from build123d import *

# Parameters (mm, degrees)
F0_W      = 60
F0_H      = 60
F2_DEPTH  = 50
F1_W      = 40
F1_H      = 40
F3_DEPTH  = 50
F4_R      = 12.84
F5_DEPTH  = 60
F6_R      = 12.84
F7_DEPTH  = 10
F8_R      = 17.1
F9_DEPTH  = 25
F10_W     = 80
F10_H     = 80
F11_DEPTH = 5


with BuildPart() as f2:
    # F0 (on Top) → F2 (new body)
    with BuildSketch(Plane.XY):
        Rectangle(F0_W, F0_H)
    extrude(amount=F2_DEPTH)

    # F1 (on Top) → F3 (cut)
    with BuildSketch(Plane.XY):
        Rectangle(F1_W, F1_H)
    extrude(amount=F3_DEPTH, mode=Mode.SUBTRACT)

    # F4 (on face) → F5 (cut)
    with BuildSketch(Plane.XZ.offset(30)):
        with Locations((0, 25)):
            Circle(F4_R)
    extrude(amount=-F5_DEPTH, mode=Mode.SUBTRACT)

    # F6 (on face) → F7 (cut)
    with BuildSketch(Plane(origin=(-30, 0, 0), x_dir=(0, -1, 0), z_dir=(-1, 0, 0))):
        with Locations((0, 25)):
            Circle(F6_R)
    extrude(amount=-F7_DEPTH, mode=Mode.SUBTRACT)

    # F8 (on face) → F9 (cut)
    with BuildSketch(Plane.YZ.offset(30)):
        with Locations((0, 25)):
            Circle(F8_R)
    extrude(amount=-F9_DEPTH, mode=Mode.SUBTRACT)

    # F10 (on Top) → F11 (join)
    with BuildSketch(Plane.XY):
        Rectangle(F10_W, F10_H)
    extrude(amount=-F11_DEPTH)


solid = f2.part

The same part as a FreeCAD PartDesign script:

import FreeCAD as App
import Part
import Sketcher

V = App.Vector
Q = App.Units.Quantity


def add_polygon(sketch, points):
    """Adds a closed chain of lines whose ends are joined by coincident constraints."""
    first, n = sketch.GeometryCount, len(points)
    for a, b in zip(points, points[1:] + points[:1]):
        sketch.addGeometry(Part.LineSegment(App.Vector(*a, 0), App.Vector(*b, 0)), False)
    for i in range(n):
        sketch.addConstraint(Sketcher.Constraint("Coincident", first + i, 2, first + (i + 1) % n, 1))

doc = App.newDocument("Part")
body = doc.addObject("PartDesign::Body", "Body")

sketch1 = body.newObject("Sketcher::SketchObject", "Sketch")
sketch1.AttachmentSupport = (doc.getObject("XY_Plane"), [""])
sketch1.MapMode = "FlatFace"
add_polygon(sketch1, [(-30, 30), (-30, -30), (30, -30), (30, 30)])
sketch1.addConstraint([
    Sketcher.Constraint("Vertical", 0),
    Sketcher.Constraint("Horizontal", 1),
    Sketcher.Constraint("Vertical", 2),
    Sketcher.Constraint("Horizontal", 3),
    Sketcher.Constraint("Symmetric", 0, 2, 2, 2, -1, 1),
    Sketcher.Constraint("Equal", 3, 0),
    Sketcher.Constraint("DistanceX", 1, 1, 1, 2, Q("60 mm")),
])
pad1 = body.newObject("PartDesign::Pad", "Pad")
pad1.Profile = sketch1
pad1.Length = 50

sketch2 = body.newObject("Sketcher::SketchObject", "Sketch001")
sketch2.AttachmentSupport = (doc.getObject("XY_Plane"), [""])
sketch2.MapMode = "FlatFace"
add_polygon(sketch2, [(-20, 20), (-20, -20), (20, -20), (20, 20)])
sketch2.addConstraint([
    Sketcher.Constraint("Vertical", 0),
    Sketcher.Constraint("Horizontal", 1),
    Sketcher.Constraint("Vertical", 2),
    Sketcher.Constraint("Horizontal", 3),
    Sketcher.Constraint("Symmetric", 0, 2, 2, 2, -1, 1),
    Sketcher.Constraint("Equal", 3, 0),
    Sketcher.Constraint("DistanceX", 1, 1, 1, 2, Q("40 mm")),
])
pocket1 = body.newObject("PartDesign::Pocket", "Pocket")
pocket1.Profile = sketch2
pocket1.Length = 50
pocket1.Reversed = True

sketch3 = body.newObject("Sketcher::SketchObject", "Sketch002")
sketch3.AttachmentSupport = (doc.getObject("XZ_Plane"), [""])
sketch3.MapMode = "FlatFace"
sketch3.AttachmentOffset = App.Placement(V(0, 0, 30), App.Rotation())
sketch3.addGeometry(Part.Circle(V(0, 25, 0), V(0, 0, 1), 13), False)
sketch3.addConstraint([
    Sketcher.Constraint("PointOnObject", 0, 3, -2),
    Sketcher.Constraint("Diameter", 0, Q("25.68 mm")),
    Sketcher.Constraint("DistanceY", -1, 1, 0, 3, Q("25 mm")),
])
pocket2 = body.newObject("PartDesign::Pocket", "Pocket001")
pocket2.Profile = sketch3
pocket2.Length = 60

sketch4 = body.newObject("Sketcher::SketchObject", "Sketch003")
sketch4.AttachmentSupport = (doc.getObject("YZ_Plane"), [""])
sketch4.MapMode = "FlatFace"
sketch4.AttachmentOffset = App.Placement(V(0, 0, -30), App.Rotation())
sketch4.addGeometry(Part.Circle(V(0, 25, 0), V(0, 0, 1), 13), False)
sketch4.addConstraint([
    Sketcher.Constraint("PointOnObject", 0, 3, -2),
    Sketcher.Constraint("Diameter", 0, Q("25.68 mm")),
    Sketcher.Constraint("DistanceY", -1, 1, 0, 3, Q("25 mm")),
])
pocket3 = body.newObject("PartDesign::Pocket", "Pocket002")
pocket3.Profile = sketch4
pocket3.Length = 10
pocket3.Reversed = True

sketch5 = body.newObject("Sketcher::SketchObject", "Sketch004")
sketch5.AttachmentSupport = (doc.getObject("YZ_Plane"), [""])
sketch5.MapMode = "FlatFace"
sketch5.AttachmentOffset = App.Placement(V(0, 0, 30), App.Rotation())
sketch5.addGeometry(Part.Circle(V(0, 25, 0), V(0, 0, 1), 17), False)
sketch5.addConstraint([
    Sketcher.Constraint("PointOnObject", 0, 3, -2),
    Sketcher.Constraint("Diameter", 0, Q("34.2 mm")),
    Sketcher.Constraint("DistanceY", -1, 1, 0, 3, Q("25 mm")),
])
pocket4 = body.newObject("PartDesign::Pocket", "Pocket003")
pocket4.Profile = sketch5
pocket4.Length = 25

sketch6 = body.newObject("Sketcher::SketchObject", "Sketch005")
sketch6.AttachmentSupport = (doc.getObject("XY_Plane"), [""])
sketch6.MapMode = "FlatFace"
add_polygon(sketch6, [(-40, 40), (-40, -40), (40, -40), (40, 40)])
sketch6.addConstraint([
    Sketcher.Constraint("Vertical", 0),
    Sketcher.Constraint("Horizontal", 1),
    Sketcher.Constraint("Vertical", 2),
    Sketcher.Constraint("Horizontal", 3),
    Sketcher.Constraint("Symmetric", 0, 2, 2, 2, -1, 1),
    Sketcher.Constraint("Equal", 3, 0),
    Sketcher.Constraint("DistanceX", 1, 1, 1, 2, Q("80 mm")),
])
pad2 = body.newObject("PartDesign::Pad", "Pad001")
pad2.Profile = sketch6
pad2.Length = 5
pad2.Reversed = True

doc.recompute()
